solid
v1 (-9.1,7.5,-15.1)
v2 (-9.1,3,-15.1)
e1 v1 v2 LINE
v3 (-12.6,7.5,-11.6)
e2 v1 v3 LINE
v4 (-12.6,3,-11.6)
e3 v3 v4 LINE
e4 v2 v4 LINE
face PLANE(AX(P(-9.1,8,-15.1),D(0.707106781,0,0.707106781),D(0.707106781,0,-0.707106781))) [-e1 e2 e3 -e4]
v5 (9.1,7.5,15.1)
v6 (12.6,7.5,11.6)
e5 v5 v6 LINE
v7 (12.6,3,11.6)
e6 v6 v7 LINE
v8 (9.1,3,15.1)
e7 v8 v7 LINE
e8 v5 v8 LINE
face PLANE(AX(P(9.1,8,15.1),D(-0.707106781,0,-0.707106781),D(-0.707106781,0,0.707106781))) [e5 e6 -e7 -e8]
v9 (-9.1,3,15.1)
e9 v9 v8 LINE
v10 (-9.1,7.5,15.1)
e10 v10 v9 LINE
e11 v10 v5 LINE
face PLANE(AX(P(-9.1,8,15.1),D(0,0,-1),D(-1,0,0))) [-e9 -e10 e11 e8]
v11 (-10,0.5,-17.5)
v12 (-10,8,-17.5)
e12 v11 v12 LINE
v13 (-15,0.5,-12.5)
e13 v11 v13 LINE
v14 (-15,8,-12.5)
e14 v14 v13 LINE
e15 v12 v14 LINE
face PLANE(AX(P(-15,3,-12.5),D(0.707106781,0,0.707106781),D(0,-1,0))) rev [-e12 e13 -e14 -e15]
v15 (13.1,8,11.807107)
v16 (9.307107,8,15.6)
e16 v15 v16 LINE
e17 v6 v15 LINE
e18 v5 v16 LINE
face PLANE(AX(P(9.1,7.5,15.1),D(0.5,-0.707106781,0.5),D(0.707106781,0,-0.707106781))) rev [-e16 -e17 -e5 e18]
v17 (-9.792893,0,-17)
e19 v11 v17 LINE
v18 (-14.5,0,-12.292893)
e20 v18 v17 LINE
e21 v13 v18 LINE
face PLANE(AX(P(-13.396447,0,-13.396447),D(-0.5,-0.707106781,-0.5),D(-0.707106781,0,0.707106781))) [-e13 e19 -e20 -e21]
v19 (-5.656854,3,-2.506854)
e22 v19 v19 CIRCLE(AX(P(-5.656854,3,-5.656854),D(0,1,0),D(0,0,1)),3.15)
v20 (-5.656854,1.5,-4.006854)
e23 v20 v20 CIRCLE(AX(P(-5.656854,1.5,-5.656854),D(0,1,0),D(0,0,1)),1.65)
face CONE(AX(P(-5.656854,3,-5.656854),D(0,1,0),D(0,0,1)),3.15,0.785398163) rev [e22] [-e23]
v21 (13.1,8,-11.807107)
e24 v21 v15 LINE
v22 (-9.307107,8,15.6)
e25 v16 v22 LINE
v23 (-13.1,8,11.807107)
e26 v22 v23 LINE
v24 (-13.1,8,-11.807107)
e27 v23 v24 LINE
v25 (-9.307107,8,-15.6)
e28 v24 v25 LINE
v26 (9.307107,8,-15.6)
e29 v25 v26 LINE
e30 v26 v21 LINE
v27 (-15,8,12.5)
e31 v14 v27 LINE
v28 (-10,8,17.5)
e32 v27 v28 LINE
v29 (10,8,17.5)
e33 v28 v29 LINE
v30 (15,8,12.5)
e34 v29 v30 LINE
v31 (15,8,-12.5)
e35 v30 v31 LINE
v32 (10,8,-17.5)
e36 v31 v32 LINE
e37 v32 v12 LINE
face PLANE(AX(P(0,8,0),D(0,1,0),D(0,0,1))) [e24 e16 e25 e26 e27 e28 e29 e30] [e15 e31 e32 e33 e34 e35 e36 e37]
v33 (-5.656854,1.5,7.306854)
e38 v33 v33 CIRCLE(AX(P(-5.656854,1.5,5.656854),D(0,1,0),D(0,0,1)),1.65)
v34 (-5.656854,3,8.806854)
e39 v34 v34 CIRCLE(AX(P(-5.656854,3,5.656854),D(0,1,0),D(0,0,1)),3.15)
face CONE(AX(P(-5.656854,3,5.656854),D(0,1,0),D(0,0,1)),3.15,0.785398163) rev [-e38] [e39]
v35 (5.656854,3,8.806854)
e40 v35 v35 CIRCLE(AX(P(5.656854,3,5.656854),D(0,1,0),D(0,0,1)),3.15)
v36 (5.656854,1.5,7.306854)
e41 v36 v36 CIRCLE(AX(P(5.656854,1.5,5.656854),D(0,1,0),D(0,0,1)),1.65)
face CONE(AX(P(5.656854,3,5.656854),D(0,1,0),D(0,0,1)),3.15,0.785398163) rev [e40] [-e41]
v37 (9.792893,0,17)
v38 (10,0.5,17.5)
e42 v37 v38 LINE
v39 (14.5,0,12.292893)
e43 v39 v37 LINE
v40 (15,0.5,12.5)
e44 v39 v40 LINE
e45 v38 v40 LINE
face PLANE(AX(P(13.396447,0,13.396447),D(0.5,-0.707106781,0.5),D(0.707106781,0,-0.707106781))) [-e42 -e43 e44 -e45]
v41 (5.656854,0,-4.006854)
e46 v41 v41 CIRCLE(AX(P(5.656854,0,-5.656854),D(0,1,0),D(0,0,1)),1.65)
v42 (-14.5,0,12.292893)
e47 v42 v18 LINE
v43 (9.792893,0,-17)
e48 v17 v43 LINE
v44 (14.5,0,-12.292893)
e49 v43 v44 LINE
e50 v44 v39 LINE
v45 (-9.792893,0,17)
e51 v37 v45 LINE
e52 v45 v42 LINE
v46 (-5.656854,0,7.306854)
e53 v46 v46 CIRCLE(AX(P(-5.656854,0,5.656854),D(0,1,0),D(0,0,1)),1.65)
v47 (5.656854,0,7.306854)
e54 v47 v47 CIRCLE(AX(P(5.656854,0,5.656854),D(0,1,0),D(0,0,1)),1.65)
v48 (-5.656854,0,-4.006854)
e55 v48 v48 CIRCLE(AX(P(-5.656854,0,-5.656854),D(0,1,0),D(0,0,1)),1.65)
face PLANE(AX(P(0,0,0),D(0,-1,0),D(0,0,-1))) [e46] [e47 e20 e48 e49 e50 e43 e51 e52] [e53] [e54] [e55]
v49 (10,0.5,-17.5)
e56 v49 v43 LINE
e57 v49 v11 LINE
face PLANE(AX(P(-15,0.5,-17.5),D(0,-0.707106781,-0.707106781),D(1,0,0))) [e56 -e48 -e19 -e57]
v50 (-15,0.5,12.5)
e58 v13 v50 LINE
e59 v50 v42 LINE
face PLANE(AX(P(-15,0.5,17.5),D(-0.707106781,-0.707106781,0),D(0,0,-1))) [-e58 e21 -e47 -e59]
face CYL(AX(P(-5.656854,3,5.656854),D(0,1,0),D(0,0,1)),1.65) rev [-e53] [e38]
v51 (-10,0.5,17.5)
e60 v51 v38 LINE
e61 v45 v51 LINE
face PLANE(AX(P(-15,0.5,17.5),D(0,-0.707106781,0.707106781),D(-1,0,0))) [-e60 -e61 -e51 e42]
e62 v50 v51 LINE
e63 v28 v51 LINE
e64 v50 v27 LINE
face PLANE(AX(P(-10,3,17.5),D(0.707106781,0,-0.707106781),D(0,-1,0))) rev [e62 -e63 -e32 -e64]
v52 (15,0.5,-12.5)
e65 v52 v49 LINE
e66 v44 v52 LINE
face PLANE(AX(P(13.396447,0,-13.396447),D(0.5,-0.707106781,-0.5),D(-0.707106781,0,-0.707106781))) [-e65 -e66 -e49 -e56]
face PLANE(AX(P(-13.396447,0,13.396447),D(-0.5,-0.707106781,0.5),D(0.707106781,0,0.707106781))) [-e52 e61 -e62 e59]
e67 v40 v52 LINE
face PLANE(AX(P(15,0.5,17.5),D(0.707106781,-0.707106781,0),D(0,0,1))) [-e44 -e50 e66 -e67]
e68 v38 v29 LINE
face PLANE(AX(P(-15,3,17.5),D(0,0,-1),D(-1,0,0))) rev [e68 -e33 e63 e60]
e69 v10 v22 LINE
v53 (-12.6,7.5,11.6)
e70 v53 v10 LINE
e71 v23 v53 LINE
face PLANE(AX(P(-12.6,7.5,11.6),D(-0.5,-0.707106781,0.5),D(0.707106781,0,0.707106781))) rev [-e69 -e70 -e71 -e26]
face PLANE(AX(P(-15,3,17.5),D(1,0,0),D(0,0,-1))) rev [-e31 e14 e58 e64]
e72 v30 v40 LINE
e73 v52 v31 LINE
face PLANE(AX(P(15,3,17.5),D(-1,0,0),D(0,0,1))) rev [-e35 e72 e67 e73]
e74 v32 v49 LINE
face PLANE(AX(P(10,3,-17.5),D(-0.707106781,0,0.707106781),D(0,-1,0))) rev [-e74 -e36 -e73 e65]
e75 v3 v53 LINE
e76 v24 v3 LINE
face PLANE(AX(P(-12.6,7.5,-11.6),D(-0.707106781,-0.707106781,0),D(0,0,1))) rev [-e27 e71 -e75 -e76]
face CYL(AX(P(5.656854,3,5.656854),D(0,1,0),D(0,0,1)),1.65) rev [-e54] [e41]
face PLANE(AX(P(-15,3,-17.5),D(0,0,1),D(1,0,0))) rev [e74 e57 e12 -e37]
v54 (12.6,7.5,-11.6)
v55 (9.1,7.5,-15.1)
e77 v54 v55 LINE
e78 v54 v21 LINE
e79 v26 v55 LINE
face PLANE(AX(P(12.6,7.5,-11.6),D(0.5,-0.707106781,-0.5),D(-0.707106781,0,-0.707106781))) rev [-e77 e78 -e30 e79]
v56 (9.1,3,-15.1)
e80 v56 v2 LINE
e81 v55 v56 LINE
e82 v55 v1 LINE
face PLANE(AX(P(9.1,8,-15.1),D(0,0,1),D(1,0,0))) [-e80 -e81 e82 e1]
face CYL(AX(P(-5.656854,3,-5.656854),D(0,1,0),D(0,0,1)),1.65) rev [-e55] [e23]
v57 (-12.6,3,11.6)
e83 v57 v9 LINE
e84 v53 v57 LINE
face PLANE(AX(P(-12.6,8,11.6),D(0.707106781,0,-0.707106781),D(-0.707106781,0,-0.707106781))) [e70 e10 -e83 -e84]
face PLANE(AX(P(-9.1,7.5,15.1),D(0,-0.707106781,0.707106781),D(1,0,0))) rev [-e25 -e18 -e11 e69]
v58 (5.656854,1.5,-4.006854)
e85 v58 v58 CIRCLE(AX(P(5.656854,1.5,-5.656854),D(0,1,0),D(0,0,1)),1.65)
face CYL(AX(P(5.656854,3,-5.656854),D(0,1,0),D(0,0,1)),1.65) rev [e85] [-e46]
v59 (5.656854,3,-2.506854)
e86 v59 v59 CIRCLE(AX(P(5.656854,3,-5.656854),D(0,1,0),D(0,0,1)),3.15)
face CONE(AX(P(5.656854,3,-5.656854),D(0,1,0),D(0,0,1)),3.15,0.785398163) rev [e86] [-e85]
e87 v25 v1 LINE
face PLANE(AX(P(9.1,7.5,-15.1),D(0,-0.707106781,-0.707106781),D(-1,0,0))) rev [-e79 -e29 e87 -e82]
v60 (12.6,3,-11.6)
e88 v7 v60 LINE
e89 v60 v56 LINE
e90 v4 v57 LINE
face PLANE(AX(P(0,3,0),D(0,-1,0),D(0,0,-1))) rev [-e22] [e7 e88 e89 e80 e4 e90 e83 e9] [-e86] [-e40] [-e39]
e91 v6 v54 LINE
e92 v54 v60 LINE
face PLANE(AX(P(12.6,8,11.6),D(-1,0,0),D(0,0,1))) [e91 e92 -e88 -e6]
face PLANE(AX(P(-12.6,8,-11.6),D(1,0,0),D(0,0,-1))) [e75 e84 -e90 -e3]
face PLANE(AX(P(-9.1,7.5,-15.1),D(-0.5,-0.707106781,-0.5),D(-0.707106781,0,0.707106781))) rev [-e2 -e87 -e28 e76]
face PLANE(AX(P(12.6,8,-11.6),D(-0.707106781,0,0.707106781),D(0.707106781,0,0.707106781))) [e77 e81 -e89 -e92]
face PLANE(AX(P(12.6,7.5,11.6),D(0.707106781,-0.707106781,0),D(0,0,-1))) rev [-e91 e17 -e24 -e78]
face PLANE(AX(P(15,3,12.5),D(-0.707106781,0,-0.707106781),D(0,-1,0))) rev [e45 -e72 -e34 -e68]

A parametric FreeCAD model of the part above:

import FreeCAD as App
import Part
import Sketcher

V = App.Vector
Q = App.Units.Quantity


def edges_at(feature, points):
    """Names of the edges that pass closest to the given points."""
    edges = feature.Shape.Edges
    near = lambda p: min(range(len(edges)), key=lambda i: edges[i].distToShape(Part.Vertex(*p))[0])
    return sorted({f"Edge{near(p) + 1}" for p in points})

doc = App.newDocument("Part")
body = doc.addObject("PartDesign::Body", "Body")

# Sketch on XZ plane
sketch1 = body.newObject("Sketcher::SketchObject", "Sketch")
sketch1.AttachmentSupport = (doc.getObject("XZ_Plane"), [""])
sketch1.MapMode = "FlatFace"
sketch1.addGeometry(Part.LineSegment(V(-15, -18, 0), V(-15, 18, 0)), False)
sketch1.addGeometry(Part.LineSegment(V(-15, 18, 0), V(15, 18, 0)), False)
sketch1.addGeometry(Part.LineSegment(V(15, 18, 0), V(15, -18, 0)), False)
sketch1.addGeometry(Part.LineSegment(V(15, -18, 0), V(-15, -18, 0)), False)
sketch1.addConstraint(Sketcher.Constraint("Coincident", 0, 2, 1, 1))
sketch1.addConstraint(Sketcher.Constraint("Coincident", 1, 2, 2, 1))
sketch1.addConstraint(Sketcher.Constraint("Coincident", 2, 2, 3, 1))
sketch1.addConstraint(Sketcher.Constraint("Coincident", 3, 2, 0, 1))
sketch1.addConstraint(Sketcher.Constraint("Vertical", 0))
sketch1.addConstraint(Sketcher.Constraint("Horizontal", 1))
sketch1.addConstraint(Sketcher.Constraint("Vertical", 2))
sketch1.addConstraint(Sketcher.Constraint("Horizontal", 3))
sketch1.addConstraint(Sketcher.Constraint("Symmetric", 0, 2, 2, 2, -1, 1))
sketch1.addConstraint(Sketcher.Constraint("DistanceX", 1, 1, 1, 2, Q("30 mm")))
sketch1.addConstraint(Sketcher.Constraint("DistanceY", 0, 1, 0, 2, Q("35 mm")))
pad1 = body.newObject("PartDesign::Pad", "Pad")
pad1.Profile = sketch1
pad1.Length = 3
pad1.Reversed = True

# Sketch on XZ plane
sketch2 = body.newObject("Sketcher::SketchObject", "Sketch001")
sketch2.AttachmentSupport = (doc.getObject("XZ_Plane"), [""])
sketch2.MapMode = "FlatFace"
sketch2.AttachmentOffset = App.Placement(V(0, 0, -3), App.Rotation())
sketch2.addGeometry(Part.LineSegment(V(-15, -17.5, 0), V(-15, 17.5, 0)), False)
sketch2.addGeometry(Part.LineSegment(V(-15, 17.5, 0), V(15, 17.5, 0)), False)
sketch2.addGeometry(Part.LineSegment(V(15, 17.5, 0), V(15, -17.5, 0)), False)
sketch2.addGeometry(Part.LineSegment(V(15, -17.5, 0), V(-15, -17.5, 0)), False)
sketch2.addGeometry(Part.LineSegment(V(12.6, -11.6, 0), V(12.6, 11.6, 0)), False)
sketch2.addGeometry(Part.LineSegment(V(12.6, 11.6, 0), V(9.1, 15.1, 0)), False)
sketch2.addGeometry(Part.LineSegment(V(9.1, 15.1, 0), V(-9.1, 15.1, 0)), False)
sketch2.addGeometry(Part.LineSegment(V(-9.1, 15.1, 0), V(-12.6, 11.6, 0)), False)
sketch2.addGeometry(Part.LineSegment(V(-12.6, 11.6, 0), V(-12.6, -11.6, 0)), False)
sketch2.addGeometry(Part.LineSegment(V(-12.6, -11.6, 0), V(-9.1, -15.1, 0)), False)
sketch2.addGeometry(Part.LineSegment(V(-9.1, -15.1, 0), V(9.1, -15.1, 0)), False)
sketch2.addGeometry(Part.LineSegment(V(9.1, -15.1, 0), V(12.6, -11.6, 0)), False)
sketch2.addConstraint(Sketcher.Constraint("Coincident", 0, 2, 1, 1))
sketch2.addConstraint(Sketcher.Constraint("Coincident", 1, 2, 2, 1))
sketch2.addConstraint(Sketcher.Constraint("Coincident", 2, 2, 3, 1))
sketch2.addConstraint(Sketcher.Constraint("Coincident", 3, 2, 0, 1))
sketch2.addConstraint(Sketcher.Constraint("Coincident", 4, 2, 5, 1))
sketch2.addConstraint(Sketcher.Constraint("Coincident", 5, 2, 6, 1))
sketch2.addConstraint(Sketcher.Constraint("Coincident", 6, 2, 7, 1))
sketch2.addConstraint(Sketcher.Constraint("Coincident", 7, 2, 8, 1))
sketch2.addConstraint(Sketcher.Constraint("Coincident", 8, 2, 9, 1))
sketch2.addConstraint(Sketcher.Constraint("Coincident", 9, 2, 10, 1))
sketch2.addConstraint(Sketcher.Constraint("Coincident", 10, 2, 11, 1))
sketch2.addConstraint(Sketcher.Constraint("Coincident", 11, 2, 4, 1))
sketch2.addConstraint(Sketcher.Constraint("Vertical", 0))
sketch2.addConstraint(Sketcher.Constraint("Horizontal", 1))
sketch2.addConstraint(Sketcher.Constraint("Vertical", 2))
sketch2.addConstraint(Sketcher.Constraint("Horizontal", 3))
sketch2.addConstraint(Sketcher.Constraint("Vertical", 4))
sketch2.addConstraint(Sketcher.Constraint("Horizontal", 6))
sketch2.addConstraint(Sketcher.Constraint("Vertical", 8))
sketch2.addConstraint(Sketcher.Constraint("Horizontal", 10))
sketch2.addConstraint(Sketcher.Constraint("Symmetric", 0, 2, 2, 2, -1, 1))
sketch2.addConstraint(Sketcher.Constraint("Symmetric", 4, 2, 8, 2, -1, 1))
sketch2.addConstraint(Sketcher.Constraint("Symmetric", 5, 2, 9, 2, -1, 1))
sketch2.addConstraint(Sketcher.Constraint("Perpendicular", 5, 7))
sketch2.addConstraint(Sketcher.Constraint("Perpendicular", 9, 11))
sketch2.addConstraint(Sketcher.Constraint("Horizontal", 4, 2, 7, 2))
sketch2.addConstraint(Sketcher.Constraint("Horizontal", 8, 2, 11, 2))
sketch2.addConstraint(Sketcher.Constraint("Vertical", 6, 2, 9, 2))
sketch2.addConstraint(Sketcher.Constraint("DistanceX", 1, 1, 1, 2, Q("30 mm")))
sketch2.addConstraint(Sketcher.Constraint("DistanceY", 0, 1, 0, 2, Q("35 mm")))
sketch2.addConstraint(Sketcher.Constraint("DistanceX", 6, 2, 6, 1, Q("18.2 mm")))
sketch2.addConstraint(Sketcher.Constraint("DistanceY", 4, 1, 4, 2, Q("23.2 mm")))
sketch2.addConstraint(Sketcher.Constraint("DistanceX", -1, 1, 4, 2, Q("12.6 mm")))
pad2 = body.newObject("PartDesign::Pad", "Pad001")
pad2.Profile = sketch2
pad2.Length = 5
pad2.Reversed = True
doc.recompute()

chamfer = body.newObject("PartDesign::Chamfer", "Chamfer")
chamfer.Base = (pad2, edges_at(pad2, [
    (15, 4, 17.5),
    (-15, 4, 17.5),
    (-15, 4, -17.5),
    (15, 4, -17.5),
]))
chamfer.Size = 5

# Sketch on YZ plane
sketch3 = body.newObject("Sketcher::SketchObject", "Sketch002")
sketch3.AttachmentSupport = (doc.getObject("YZ_Plane"), [""])
sketch3.MapMode = "FlatFace"
sketch3.AttachmentOffset = App.Placement(V(0, 0, -5.656854), App.Rotation())
sketch3.addGeometry(Part.LineSegment(V(0, -5.7, 0), V(3, -5.7, 0)), False)
sketch3.addGeometry(Part.LineSegment(V(3, -5.7, 0), V(3, -2.5, 0)), False)
sketch3.addGeometry(Part.LineSegment(V(3, -2.5, 0), V(1.5, -4, 0)), False)
sketch3.addGeometry(Part.LineSegment(V(1.5, -4, 0), V(0, -4, 0)), False)
sketch3.addGeometry(Part.LineSegment(V(0, -4, 0), V(0, -5.7, 0)), False)
sketch3.addGeometry(Part.LineSegment(V(3, -5.7, 0), V(0, -5.7, 0)), True)  # axis
sketch3.addConstraint(Sketcher.Constraint("Coincident", 0, 2, 1, 1))
sketch3.addConstraint(Sketcher.Constraint("Coincident", 1, 2, 2, 1))
sketch3.addConstraint(Sketcher.Constraint("Coincident", 2, 2, 3, 1))
sketch3.addConstraint(Sketcher.Constraint("Coincident", 3, 2, 4, 1))
sketch3.addConstraint(Sketcher.Constraint("Coincident", 4, 2, 0, 1))
sketch3.addConstraint(Sketcher.Constraint("Horizontal", 0))
sketch3.addConstraint(Sketcher.Constraint("Vertical", 1))
sketch3.addConstraint(Sketcher.Constraint("Horizontal", 3))
sketch3.addConstraint(Sketcher.Constraint("Vertical", 4))
sketch3.addConstraint(Sketcher.Constraint("Horizontal", 5))
sketch3.addConstraint(Sketcher.Constraint("Coincident", 5, 1, 0, 2))
sketch3.addConstraint(Sketcher.Constraint("PointOnObject", 3, 2, -2))
sketch3.addConstraint(Sketcher.Constraint("PointOnObject", 5, 2, -2))
sketch3.addConstraint(Sketcher.Constraint("DistanceX", 0, 1, 0, 2, Q("3 mm")))
sketch3.addConstraint(Sketcher.Constraint("Angle", 2, Q("-135 deg")))
sketch3.addConstraint(Sketcher.Constraint("DistanceX", 3, 2, 3, 1, Q("1.5 mm")))
sketch3.addConstraint(Sketcher.Constraint("DistanceY", 1, 1, 1, 2, Q("3.15 mm")))
sketch3.addConstraint(Sketcher.Constraint("DistanceY", 0, 2, -1, 1, Q("5.656854 mm")))
groove = body.newObject("PartDesign::Groove", "Groove")
groove.Profile = sketch3
groove.ReferenceAxis = (sketch3, ["Axis0"])
groove.Angle = 360
doc.recompute()

linearpattern = body.newObject("PartDesign::LinearPattern", "LinearPattern")
linearpattern.Originals = [groove]
linearpattern.Direction = (doc.getObject("X_Axis"), [""])
linearpattern.Mode = "offset"
linearpattern.Offset = 11.313708
linearpattern.Occurrences = 2
body.Tip = linearpattern
doc.recompute()

datumline = body.newObject("PartDesign::Line", "DatumLine")
datumline.Placement = App.Placement(V(0, 0, 0), App.Rotation(V(0, 0, 1), V(0.707106781, 0, 0.707106781)))
linearpattern2 = body.newObject("PartDesign::LinearPattern", "LinearPattern001")
linearpattern2.Originals = [groove]
linearpattern2.Direction = (datumline, [""])
linearpattern2.Mode = "offset"
linearpattern2.Offset = 16
linearpattern2.Occurrences = 2
body.Tip = linearpattern2
doc.recompute()

linearpattern3 = body.newObject("PartDesign::LinearPattern", "LinearPattern002")
linearpattern3.Originals = [groove]
linearpattern3.Direction = (doc.getObject("Z_Axis"), [""])
linearpattern3.Mode = "offset"
linearpattern3.Offset = 11.313708
linearpattern3.Occurrences = 2
body.Tip = linearpattern3
doc.recompute()

chamfer2 = body.newObject("PartDesign::Chamfer", "Chamfer001")
chamfer2.Base = (linearpattern3, edges_at(linearpattern3, [
    (-10.85, 8, -13.35),
    (-12.6, 8, 0),
    (-10.85, 8, 13.35),
    (0, 8, 15.1),
    (10.85, 8, 13.35),
    (12.6, 8, 0),
    (10.85, 8, -13.35),
    (0, 8, -15.1),
]))
chamfer2.Size = 0.5
doc.recompute()

chamfer3 = body.newObject("PartDesign::Chamfer", "Chamfer002")
chamfer3.Base = (chamfer2, edges_at(chamfer2, [
    (15, 0, 0),
    (0, 0, 17.5),
    (-15, 0, 0),
    (0, 0, -17.5),
    (-12.5, 0, -15),
    (12.5, 0, -15),
    (-12.5, 0, 15),
    (12.5, 0, 15),
]))
chamfer3.Size = 0.5

doc.recompute()
